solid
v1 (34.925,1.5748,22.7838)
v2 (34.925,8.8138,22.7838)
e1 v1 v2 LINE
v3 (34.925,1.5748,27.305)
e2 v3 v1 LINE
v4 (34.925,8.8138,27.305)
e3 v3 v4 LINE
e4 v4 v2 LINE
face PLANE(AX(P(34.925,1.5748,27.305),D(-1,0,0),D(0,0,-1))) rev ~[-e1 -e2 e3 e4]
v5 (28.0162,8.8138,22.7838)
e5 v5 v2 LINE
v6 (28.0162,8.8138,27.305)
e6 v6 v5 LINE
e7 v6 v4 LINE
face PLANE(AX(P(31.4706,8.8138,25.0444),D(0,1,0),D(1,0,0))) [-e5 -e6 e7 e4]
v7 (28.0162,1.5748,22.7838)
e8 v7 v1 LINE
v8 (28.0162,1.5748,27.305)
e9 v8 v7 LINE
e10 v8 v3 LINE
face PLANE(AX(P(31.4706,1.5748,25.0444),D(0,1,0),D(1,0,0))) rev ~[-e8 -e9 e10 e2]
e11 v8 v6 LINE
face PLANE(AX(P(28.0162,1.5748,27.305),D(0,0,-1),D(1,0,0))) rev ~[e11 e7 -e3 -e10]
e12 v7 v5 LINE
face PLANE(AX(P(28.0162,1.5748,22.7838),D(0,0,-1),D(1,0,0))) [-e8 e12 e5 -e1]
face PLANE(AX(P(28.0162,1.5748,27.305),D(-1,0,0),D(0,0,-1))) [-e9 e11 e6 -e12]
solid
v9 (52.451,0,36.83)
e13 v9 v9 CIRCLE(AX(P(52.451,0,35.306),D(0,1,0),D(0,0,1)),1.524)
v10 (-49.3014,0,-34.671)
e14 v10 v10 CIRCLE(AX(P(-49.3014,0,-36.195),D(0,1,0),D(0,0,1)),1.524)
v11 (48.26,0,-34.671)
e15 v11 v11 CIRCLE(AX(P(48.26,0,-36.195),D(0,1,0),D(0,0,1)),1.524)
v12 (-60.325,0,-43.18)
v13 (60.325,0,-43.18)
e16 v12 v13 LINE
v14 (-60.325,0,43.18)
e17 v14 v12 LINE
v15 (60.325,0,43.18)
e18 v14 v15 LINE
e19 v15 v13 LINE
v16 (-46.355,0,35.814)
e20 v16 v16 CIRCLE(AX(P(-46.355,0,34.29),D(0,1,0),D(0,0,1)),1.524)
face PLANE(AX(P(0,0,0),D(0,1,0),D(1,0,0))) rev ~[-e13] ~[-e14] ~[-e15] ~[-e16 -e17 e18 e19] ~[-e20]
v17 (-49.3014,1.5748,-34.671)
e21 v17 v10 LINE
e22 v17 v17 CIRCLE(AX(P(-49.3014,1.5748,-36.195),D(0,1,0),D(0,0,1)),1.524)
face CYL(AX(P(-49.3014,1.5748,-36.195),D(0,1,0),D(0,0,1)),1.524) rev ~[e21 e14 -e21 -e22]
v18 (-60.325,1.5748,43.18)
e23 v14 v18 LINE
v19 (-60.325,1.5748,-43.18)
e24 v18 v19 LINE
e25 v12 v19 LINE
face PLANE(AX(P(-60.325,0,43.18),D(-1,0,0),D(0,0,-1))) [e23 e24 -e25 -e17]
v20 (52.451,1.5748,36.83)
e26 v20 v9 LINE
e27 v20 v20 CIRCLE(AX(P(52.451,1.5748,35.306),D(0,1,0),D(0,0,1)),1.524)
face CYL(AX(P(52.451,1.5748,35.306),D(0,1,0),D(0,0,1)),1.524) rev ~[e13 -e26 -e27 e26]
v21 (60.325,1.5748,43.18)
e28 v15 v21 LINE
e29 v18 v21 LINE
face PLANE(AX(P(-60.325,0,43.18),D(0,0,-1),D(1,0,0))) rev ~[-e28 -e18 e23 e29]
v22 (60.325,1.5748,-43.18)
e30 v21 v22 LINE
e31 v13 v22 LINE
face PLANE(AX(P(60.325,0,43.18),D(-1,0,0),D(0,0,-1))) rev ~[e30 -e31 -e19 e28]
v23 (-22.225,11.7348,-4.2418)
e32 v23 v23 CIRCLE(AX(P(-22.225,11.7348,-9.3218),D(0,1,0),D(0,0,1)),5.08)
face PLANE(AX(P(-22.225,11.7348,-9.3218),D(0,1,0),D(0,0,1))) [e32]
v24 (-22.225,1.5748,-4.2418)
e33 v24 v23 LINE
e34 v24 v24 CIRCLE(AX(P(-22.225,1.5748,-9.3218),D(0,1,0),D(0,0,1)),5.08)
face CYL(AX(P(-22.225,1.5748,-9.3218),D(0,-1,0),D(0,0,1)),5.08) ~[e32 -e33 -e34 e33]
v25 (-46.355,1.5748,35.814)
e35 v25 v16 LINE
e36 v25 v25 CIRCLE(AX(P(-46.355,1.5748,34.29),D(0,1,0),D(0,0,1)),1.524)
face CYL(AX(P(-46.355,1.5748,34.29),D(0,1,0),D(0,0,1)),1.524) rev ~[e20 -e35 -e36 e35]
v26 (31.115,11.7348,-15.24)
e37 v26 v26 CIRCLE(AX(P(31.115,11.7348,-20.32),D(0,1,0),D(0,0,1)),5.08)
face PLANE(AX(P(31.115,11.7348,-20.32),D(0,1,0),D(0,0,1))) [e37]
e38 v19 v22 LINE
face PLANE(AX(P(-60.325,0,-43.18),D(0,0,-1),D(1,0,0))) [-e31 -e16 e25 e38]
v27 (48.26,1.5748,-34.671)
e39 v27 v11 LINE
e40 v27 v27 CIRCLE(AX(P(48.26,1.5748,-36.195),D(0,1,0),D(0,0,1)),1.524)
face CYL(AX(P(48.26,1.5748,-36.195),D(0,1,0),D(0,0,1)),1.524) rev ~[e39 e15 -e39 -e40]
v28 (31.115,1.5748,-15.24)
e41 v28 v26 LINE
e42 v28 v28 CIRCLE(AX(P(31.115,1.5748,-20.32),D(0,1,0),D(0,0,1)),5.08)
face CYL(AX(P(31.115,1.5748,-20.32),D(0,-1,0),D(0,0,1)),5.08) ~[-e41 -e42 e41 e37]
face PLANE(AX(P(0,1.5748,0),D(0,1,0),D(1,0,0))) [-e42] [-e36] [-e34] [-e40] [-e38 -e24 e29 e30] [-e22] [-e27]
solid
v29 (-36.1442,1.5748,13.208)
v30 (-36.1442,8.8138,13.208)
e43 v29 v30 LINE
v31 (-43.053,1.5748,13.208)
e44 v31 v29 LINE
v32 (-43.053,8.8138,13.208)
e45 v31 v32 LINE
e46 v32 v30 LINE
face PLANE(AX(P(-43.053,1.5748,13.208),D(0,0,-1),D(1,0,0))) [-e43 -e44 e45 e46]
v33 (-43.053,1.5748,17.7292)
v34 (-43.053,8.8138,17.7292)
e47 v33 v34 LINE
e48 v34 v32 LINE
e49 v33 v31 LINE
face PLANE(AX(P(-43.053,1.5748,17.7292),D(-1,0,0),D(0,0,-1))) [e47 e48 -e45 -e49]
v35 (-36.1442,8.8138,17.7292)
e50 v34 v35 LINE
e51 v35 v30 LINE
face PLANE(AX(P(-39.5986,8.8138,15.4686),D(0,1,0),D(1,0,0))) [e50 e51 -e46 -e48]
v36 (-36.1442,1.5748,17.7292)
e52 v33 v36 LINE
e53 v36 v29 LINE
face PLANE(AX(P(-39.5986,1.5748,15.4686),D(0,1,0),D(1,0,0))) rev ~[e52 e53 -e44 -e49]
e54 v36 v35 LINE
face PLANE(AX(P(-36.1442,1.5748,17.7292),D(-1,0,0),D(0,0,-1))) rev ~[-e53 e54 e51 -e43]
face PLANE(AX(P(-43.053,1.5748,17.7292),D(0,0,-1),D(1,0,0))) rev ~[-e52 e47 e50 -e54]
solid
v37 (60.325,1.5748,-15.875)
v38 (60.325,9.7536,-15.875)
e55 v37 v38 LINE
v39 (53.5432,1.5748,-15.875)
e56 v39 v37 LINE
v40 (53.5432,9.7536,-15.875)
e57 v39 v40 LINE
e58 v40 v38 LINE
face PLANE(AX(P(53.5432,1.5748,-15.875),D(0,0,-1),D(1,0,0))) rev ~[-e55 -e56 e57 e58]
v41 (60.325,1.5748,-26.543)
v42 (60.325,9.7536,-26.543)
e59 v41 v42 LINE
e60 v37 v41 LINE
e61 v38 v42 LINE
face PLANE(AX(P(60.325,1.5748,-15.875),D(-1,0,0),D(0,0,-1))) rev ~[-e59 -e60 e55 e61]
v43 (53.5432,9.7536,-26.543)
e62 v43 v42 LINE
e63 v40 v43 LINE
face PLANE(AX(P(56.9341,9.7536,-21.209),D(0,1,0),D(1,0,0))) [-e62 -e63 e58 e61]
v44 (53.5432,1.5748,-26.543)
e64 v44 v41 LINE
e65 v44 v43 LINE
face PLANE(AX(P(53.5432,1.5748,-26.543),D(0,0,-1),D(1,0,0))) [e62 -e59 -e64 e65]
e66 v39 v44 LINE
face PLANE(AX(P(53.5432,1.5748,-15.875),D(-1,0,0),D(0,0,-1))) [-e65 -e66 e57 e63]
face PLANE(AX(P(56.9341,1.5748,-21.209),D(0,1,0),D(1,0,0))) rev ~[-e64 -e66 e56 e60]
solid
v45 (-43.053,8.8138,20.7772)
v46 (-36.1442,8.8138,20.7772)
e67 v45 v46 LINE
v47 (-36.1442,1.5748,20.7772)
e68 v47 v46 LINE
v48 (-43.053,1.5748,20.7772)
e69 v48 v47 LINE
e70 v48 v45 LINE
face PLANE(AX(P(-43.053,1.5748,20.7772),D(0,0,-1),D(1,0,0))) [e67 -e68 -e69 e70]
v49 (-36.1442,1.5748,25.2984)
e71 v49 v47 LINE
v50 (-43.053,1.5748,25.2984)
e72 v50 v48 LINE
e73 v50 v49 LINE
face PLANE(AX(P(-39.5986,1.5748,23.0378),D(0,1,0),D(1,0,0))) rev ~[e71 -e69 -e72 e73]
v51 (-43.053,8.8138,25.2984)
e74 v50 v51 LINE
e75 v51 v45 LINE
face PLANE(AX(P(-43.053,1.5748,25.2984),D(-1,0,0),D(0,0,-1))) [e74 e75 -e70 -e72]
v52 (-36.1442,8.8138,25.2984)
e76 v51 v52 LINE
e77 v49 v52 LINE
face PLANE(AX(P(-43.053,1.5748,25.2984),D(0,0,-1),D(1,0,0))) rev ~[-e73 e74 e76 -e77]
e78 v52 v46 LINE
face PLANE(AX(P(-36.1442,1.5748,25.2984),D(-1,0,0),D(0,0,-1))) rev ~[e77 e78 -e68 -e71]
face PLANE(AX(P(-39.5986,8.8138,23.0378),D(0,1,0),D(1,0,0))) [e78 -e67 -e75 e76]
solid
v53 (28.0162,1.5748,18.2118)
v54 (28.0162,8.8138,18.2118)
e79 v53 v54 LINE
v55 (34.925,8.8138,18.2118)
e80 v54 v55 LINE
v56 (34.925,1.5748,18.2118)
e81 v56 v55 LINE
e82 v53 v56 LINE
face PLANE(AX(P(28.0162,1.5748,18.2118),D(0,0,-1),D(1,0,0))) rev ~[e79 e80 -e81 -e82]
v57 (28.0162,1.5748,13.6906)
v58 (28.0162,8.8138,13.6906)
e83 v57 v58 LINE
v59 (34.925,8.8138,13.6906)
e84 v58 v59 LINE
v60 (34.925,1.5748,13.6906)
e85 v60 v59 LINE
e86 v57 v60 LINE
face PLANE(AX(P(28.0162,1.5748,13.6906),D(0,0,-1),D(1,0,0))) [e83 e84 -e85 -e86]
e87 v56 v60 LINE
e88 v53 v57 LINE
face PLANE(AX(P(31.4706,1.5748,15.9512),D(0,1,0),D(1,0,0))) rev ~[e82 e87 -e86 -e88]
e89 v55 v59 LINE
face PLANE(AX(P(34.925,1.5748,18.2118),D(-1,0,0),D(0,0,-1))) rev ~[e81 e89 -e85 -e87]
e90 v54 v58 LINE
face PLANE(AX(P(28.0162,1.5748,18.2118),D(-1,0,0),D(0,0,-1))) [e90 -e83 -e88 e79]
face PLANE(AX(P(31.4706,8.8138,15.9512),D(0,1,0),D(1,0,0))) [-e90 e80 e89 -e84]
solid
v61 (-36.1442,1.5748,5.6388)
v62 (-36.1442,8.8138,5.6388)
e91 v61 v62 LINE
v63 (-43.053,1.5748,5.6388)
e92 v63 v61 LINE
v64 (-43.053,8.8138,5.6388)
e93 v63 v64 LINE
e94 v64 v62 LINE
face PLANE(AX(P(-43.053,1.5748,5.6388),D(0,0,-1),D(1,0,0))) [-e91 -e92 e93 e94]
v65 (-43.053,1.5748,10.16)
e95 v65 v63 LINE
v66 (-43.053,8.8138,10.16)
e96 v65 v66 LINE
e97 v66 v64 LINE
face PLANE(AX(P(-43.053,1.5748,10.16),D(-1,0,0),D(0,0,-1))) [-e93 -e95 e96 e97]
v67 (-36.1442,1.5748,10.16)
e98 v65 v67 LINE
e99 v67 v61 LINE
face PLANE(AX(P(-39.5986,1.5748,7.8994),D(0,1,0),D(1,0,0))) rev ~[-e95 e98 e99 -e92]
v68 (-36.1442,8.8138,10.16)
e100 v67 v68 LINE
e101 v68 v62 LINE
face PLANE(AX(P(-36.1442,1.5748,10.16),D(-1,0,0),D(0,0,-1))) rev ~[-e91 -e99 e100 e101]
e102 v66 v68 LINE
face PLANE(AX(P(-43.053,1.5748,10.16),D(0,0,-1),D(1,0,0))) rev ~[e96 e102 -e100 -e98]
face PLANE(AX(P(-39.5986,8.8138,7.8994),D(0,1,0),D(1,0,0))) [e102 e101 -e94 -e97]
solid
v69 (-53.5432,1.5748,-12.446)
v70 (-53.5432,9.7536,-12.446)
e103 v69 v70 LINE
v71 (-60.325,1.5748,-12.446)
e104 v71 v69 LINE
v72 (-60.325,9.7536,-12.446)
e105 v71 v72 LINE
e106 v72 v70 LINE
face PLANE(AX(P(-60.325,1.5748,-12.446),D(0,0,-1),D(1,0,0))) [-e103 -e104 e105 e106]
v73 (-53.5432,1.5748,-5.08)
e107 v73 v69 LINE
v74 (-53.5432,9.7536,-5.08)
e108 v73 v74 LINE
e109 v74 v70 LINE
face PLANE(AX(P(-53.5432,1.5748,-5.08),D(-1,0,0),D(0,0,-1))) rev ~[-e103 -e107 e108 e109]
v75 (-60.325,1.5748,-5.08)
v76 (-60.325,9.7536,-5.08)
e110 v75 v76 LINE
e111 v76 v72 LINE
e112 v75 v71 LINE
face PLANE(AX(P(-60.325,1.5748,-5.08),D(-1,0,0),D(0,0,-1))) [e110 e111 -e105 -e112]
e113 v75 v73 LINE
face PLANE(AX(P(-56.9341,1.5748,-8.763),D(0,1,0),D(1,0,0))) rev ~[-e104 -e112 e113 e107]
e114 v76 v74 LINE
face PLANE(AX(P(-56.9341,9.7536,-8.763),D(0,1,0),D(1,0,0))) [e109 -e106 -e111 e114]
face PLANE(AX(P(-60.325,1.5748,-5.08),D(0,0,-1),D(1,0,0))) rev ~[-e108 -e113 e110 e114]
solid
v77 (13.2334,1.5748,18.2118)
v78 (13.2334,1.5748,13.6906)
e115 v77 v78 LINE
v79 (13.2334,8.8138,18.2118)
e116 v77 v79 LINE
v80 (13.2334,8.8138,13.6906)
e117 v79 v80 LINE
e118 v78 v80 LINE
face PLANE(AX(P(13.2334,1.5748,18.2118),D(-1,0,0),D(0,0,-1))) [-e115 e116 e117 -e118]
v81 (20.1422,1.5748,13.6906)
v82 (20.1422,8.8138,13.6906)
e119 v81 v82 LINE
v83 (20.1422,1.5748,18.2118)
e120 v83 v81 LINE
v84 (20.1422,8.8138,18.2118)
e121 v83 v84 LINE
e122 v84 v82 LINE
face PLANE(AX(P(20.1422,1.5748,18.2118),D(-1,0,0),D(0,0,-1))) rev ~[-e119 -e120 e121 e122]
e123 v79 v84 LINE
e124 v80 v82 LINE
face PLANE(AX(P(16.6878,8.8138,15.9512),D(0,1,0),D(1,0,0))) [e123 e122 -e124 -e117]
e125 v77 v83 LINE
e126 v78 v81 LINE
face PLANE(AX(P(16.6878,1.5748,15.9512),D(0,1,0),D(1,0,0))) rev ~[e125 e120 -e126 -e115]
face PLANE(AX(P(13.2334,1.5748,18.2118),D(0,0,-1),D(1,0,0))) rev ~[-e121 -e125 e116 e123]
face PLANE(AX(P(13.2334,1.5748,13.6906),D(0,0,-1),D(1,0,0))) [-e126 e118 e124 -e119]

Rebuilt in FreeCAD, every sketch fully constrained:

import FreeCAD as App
import Part
import Sketcher

V = App.Vector
Q = App.Units.Quantity


def add_polygon(sketch, points):
    """Adds a closed chain of lines whose ends are joined by coincident constraints."""
    first, n = sketch.GeometryCount, len(points)
    for a, b in zip(points, points[1:] + points[:1]):
        sketch.addGeometry(Part.LineSegment(App.Vector(*a, 0), App.Vector(*b, 0)), False)
    for i in range(n):
        sketch.addConstraint(Sketcher.Constraint("Coincident", first + i, 2, first + (i + 1) % n, 1))

doc = App.newDocument("Part")
body = doc.addObject("PartDesign::Body", "Body")

sketch1 = body.newObject("Sketcher::SketchObject", "Sketch")
sketch1.AttachmentSupport = (doc.getObject("XZ_Plane"), [""])
sketch1.MapMode = "FlatFace"
add_polygon(sketch1, [(-60, -43), (-60, 43), (60, 43), (60, -43)])
sketch1.addConstraint([
    Sketcher.Constraint("Vertical", 0),
    Sketcher.Constraint("Horizontal", 1),
    Sketcher.Constraint("Vertical", 2),
    Sketcher.Constraint("Horizontal", 3),
    Sketcher.Constraint("Symmetric", 0, 2, 2, 2, -1, 1),
    Sketcher.Constraint("DistanceY", 0, 1, 0, 2, Q("3.4 in")),
    Sketcher.Constraint("DistanceX", 1, 1, 1, 2, Q("4.75 in")),
])
pad1 = body.newObject("PartDesign::Pad", "Pad")
pad1.Profile = sketch1
pad1.Length = Q("0.062 in")
pad1.Reversed = True

sketch2 = body.newObject("Sketcher::SketchObject", "Sketch001")
sketch2.AttachmentSupport = (doc.getObject("XZ_Plane"), [""])
sketch2.MapMode = "FlatFace"
sketch2.AttachmentOffset = App.Placement(V(0, 0, -0.062 * 25.4), App.Rotation())
sketch2.addGeometry([
    Part.Circle(V(-22, -9, 0), V(0, 0, 1), 5),
    Part.Circle(V(31, -20, 0), V(0, 0, 1), 5),
], False)
sketch2.addConstraint([
    Sketcher.Constraint("Equal", 0, 1),
    Sketcher.Constraint("Diameter", 0, Q("0.4 in")),
    Sketcher.Constraint("DistanceY", 1, 3, -1, 1, Q("0.8 in")),
    Sketcher.Constraint("DistanceX", 0, 3, 1, 3, Q("2.1 in")),
    Sketcher.Constraint("DistanceX", 0, 3, -1, 1, Q("0.875 in")),
    Sketcher.Constraint("DistanceY", 0, 3, -1, 1, Q("0.367 in")),
])
pad2 = body.newObject("PartDesign::Pad", "Pad001")
pad2.Profile = sketch2
pad2.Length = Q("0.4 in")
pad2.Reversed = True

sketch3 = body.newObject("Sketcher::SketchObject", "Sketch002")
sketch3.AttachmentSupport = (doc.getObject("XZ_Plane"), [""])
sketch3.MapMode = "FlatFace"
sketch3.AttachmentOffset = App.Placement(V(0, 0, -0.062 * 25.4), App.Rotation())
sketch3.addGeometry([
    Part.Circle(V(-49.3, -36.2, 0), V(0, 0, 1), 1.5),
    Part.Circle(V(48.3, -36.2, 0), V(0, 0, 1), 1.5),
    Part.Circle(V(-46.4, 34.3, 0), V(0, 0, 1), 1.5),
    Part.Circle(V(52.5, 35.3, 0), V(0, 0, 1), 1.5),
], False)
sketch3.addConstraint([
    Sketcher.Constraint("Equal", 0, 1),
    Sketcher.Constraint("Equal", 1, 2),
    Sketcher.Constraint("Equal", 2, 3),
    Sketcher.Constraint("Horizontal", 0, 3, 1, 3),
    Sketcher.Constraint("Diameter", 0, Q("0.12 in")),
    Sketcher.Constraint("DistanceX", -1, 1, 1, 3, Q("1.9 in")),
    Sketcher.Constraint("DistanceY", -1, 1, 2, 3, Q("1.35 in")),
    Sketcher.Constraint("DistanceY", -1, 1, 3, 3, Q("1.39 in")),
    Sketcher.Constraint("DistanceX", 2, 3, 3, 3, Q("3.89 in")),
    Sketcher.Constraint("DistanceX", 0, 3, -1, 1, Q("1.941 in")),
    Sketcher.Constraint("DistanceY", 0, 3, -1, 1, Q("1.425 in")),
    Sketcher.Constraint("DistanceX", 2, 3, -1, 1, Q("1.825 in")),
])
pocket1 = body.newObject("PartDesign::Pocket", "Pocket")
pocket1.Profile = sketch3
pocket1.Type = "ThroughAll"
pocket1.Reversed = True
body2 = doc.addObject("PartDesign::Body", "Body001")

sketch4 = body2.newObject("Sketcher::SketchObject", "Sketch003")
sketch4.AttachmentSupport = (doc.getObject("XZ_Plane001"), [""])
sketch4.MapMode = "FlatFace"
sketch4.AttachmentOffset = App.Placement(V(0, 0, -0.062 * 25.4), App.Rotation())
add_polygon(sketch4, [(-60, -12), (-60, -5), (-54, -5), (-54, -12)])
sketch4.addConstraint([
    Sketcher.Constraint("Vertical", 0),
    Sketcher.Constraint("Horizontal", 1),
    Sketcher.Constraint("Vertical", 2),
    Sketcher.Constraint("Horizontal", 3),
    Sketcher.Constraint("DistanceY", 0, 1, 0, 2, Q("0.29 in")),
    Sketcher.Constraint("DistanceY", 0, 2, -1, 1, Q("0.2 in")),
    Sketcher.Constraint("DistanceX", 1, 1, 1, 2, Q("0.267 in")),
    Sketcher.Constraint("DistanceX", 0, 2, -1, 1, Q("2.375 in")),
])
pad3 = body2.newObject("PartDesign::Pad", "Pad002")
pad3.Profile = sketch4
pad3.Length = Q("0.322 in")
pad3.Reversed = True
body3 = doc.addObject("PartDesign::Body", "Body002")

sketch5 = body3.newObject("Sketcher::SketchObject", "Sketch004")
sketch5.AttachmentSupport = (doc.getObject("XZ_Plane002"), [""])
sketch5.MapMode = "FlatFace"
sketch5.AttachmentOffset = App.Placement(V(0, 0, -0.062 * 25.4), App.Rotation())
add_polygon(sketch5, [(54, -27), (54, -16), (60, -16), (60, -27)])
sketch5.addConstraint([
    Sketcher.Constraint("Vertical", 0),
    Sketcher.Constraint("Horizontal", 1),
    Sketcher.Constraint("Vertical", 2),
    Sketcher.Constraint("Horizontal", 3),
    Sketcher.Constraint("DistanceY", 0, 1, 0, 2, Q("0.42 in")),
    Sketcher.Constraint("DistanceX", 1, 1, 1, 2, Q("0.267 in")),
    Sketcher.Constraint("DistanceX", -1, 1, 0, 2, Q("2.108 in")),
    Sketcher.Constraint("DistanceY", 0, 2, -1, 1, Q("0.625 in")),
])
pad4 = body3.newObject("PartDesign::Pad", "Pad003")
pad4.Profile = sketch5
pad4.Length = Q("0.322 in")
pad4.Reversed = True
body4 = doc.addObject("PartDesign::Body", "Body003")

sketch6 = body4.newObject("Sketcher::SketchObject", "Sketch005")
sketch6.AttachmentSupport = (doc.getObject("XZ_Plane003"), [""])
sketch6.MapMode = "FlatFace"
sketch6.AttachmentOffset = App.Placement(V(0, 0, -0.062 * 25.4), App.Rotation())
add_polygon(sketch6, [(-43.1, 5.6), (-43.1, 10.2), (-36.1, 10.2), (-36.1, 5.6)])
sketch6.addConstraint([
    Sketcher.Constraint("Vertical", 0),
    Sketcher.Constraint("Horizontal", 1),
    Sketcher.Constraint("Vertical", 2),
    Sketcher.Constraint("Horizontal", 3),
    Sketcher.Constraint("DistanceY", -1, 1, 0, 2, Q("0.4 in")),
    Sketcher.Constraint("DistanceX", 1, 1, 1, 2, Q("0.272 in")),
    Sketcher.Constraint("DistanceY", 0, 1, 0, 2, Q("0.178 in")),
    Sketcher.Constraint("DistanceX", 0, 2, -1, 1, Q("1.695 in")),
])
pad5 = body4.newObject("PartDesign::Pad", "Pad004")
pad5.Profile = sketch6
pad5.Length = Q("0.285 in")
pad5.Reversed = True
body5 = doc.addObject("PartDesign::Body", "Body004")

sketch7 = body5.newObject("Sketcher::SketchObject", "Sketch006")
sketch7.AttachmentSupport = (doc.getObject("XZ_Plane004"), [""])
sketch7.MapMode = "FlatFace"
sketch7.AttachmentOffset = App.Placement(V(0, 0, -0.062 * 25.4), App.Rotation())
add_polygon(sketch7, [(-43.1, 13.2), (-43.1, 17.7), (-36.1, 17.7), (-36.1, 13.2)])
sketch7.addConstraint([
    Sketcher.Constraint("Vertical", 0),
    Sketcher.Constraint("Horizontal", 1),
    Sketcher.Constraint("Vertical", 2),
    Sketcher.Constraint("Horizontal", 3),
    Sketcher.Constraint("DistanceX", 1, 1, 1, 2, Q("0.272 in")),
    Sketcher.Constraint("DistanceY", 0, 1, 0, 2, Q("0.178 in")),
    Sketcher.Constraint("DistanceY", -1, 1, 2, 2, Q("0.52 in")),
    Sketcher.Constraint("DistanceX", 0, 2, -1, 1, Q("1.695 in")),
])
pad6 = body5.newObject("PartDesign::Pad", "Pad005")
pad6.Profile = sketch7
pad6.Length = Q("0.285 in")
pad6.Reversed = True
body6 = doc.addObject("PartDesign::Body", "Body005")

sketch8 = body6.newObject("Sketcher::SketchObject", "Sketch007")
sketch8.AttachmentSupport = (doc.getObject("XZ_Plane005"), [""])
sketch8.MapMode = "FlatFace"
sketch8.AttachmentOffset = App.Placement(V(0, 0, -0.062 * 25.4), App.Rotation())
add_polygon(sketch8, [(-43.1, 20.8), (-43.1, 25.3), (-36.1, 25.3), (-36.1, 20.8)])
sketch8.addConstraint([
    Sketcher.Constraint("Vertical", 0),
    Sketcher.Constraint("Horizontal", 1),
    Sketcher.Constraint("Vertical", 2),
    Sketcher.Constraint("Horizontal", 3),
    Sketcher.Constraint("DistanceX", 1, 1, 1, 2, Q("0.272 in")),
    Sketcher.Constraint("DistanceY", 0, 1, 0, 2, Q("0.178 in")),
    Sketcher.Constraint("DistanceX", 0, 2, -1, 1, Q("1.695 in")),
    Sketcher.Constraint("DistanceY", -1, 1, 0, 2, Q("0.996 in")),
])
pad7 = body6.newObject("PartDesign::Pad", "Pad006")
pad7.Profile = sketch8
pad7.Length = Q("0.285 in")
pad7.Reversed = True
body7 = doc.addObject("PartDesign::Body", "Body006")

sketch9 = body7.newObject("Sketcher::SketchObject", "Sketch008")
sketch9.AttachmentSupport = (doc.getObject("XZ_Plane006"), [""])
sketch9.MapMode = "FlatFace"
sketch9.AttachmentOffset = App.Placement(V(0, 0, -0.062 * 25.4), App.Rotation())
add_polygon(sketch9, [(28, 13.7), (28, 18.2), (34.9, 18.2), (34.9, 13.7)])
sketch9.addConstraint([
    Sketcher.Constraint("Vertical", 0),
    Sketcher.Constraint("Horizontal", 1),
    Sketcher.Constraint("Vertical", 2),
    Sketcher.Constraint("Horizontal", 3),
    Sketcher.Constraint("DistanceX", 1, 1, 1, 2, Q("0.272 in")),
    Sketcher.Constraint("DistanceY", 0, 1, 0, 2, Q("0.178 in")),
    Sketcher.Constraint("DistanceX", -1, 1, 0, 2, Q("1.103 in")),
    Sketcher.Constraint("DistanceY", -1, 1, 0, 2, Q("0.717 in")),
])
pad8 = body7.newObject("PartDesign::Pad", "Pad007")
pad8.Profile = sketch9
pad8.Length = Q("0.285 in")
pad8.Reversed = True
body8 = doc.addObject("PartDesign::Body", "Body007")

sketch10 = body8.newObject("Sketcher::SketchObject", "Sketch009")
sketch10.AttachmentSupport = (doc.getObject("XZ_Plane007"), [""])
sketch10.MapMode = "FlatFace"
sketch10.AttachmentOffset = App.Placement(V(0, 0, -0.062 * 25.4), App.Rotation())
add_polygon(sketch10, [(28, 22.8), (28, 27.3), (34.9, 27.3), (34.9, 22.8)])
sketch10.addConstraint([
    Sketcher.Constraint("Vertical", 0),
    Sketcher.Constraint("Horizontal", 1),
    Sketcher.Constraint("Vertical", 2),
    Sketcher.Constraint("Horizontal", 3),
    Sketcher.Constraint("DistanceX", 1, 1, 1, 2, Q("0.272 in")),
    Sketcher.Constraint("DistanceY", 0, 1, 0, 2, Q("0.178 in")),
    Sketcher.Constraint("DistanceX", -1, 1, 0, 2, Q("1.103 in")),
    Sketcher.Constraint("DistanceY", -1, 1, 0, 2, Q("1.075 in")),
])
pad9 = body8.newObject("PartDesign::Pad", "Pad008")
pad9.Profile = sketch10
pad9.Length = Q("0.285 in")
pad9.Reversed = True
body9 = doc.addObject("PartDesign::Body", "Body008")

sketch11 = body9.newObject("Sketcher::SketchObject", "Sketch010")
sketch11.AttachmentSupport = (doc.getObject("XZ_Plane008"), [""])
sketch11.MapMode = "FlatFace"
sketch11.AttachmentOffset = App.Placement(V(0, 0, -0.062 * 25.4), App.Rotation())
add_polygon(sketch11, [(13.2, 13.7), (13.2, 18.2), (20.1, 18.2), (20.1, 13.7)])
sketch11.addConstraint([
    Sketcher.Constraint("Vertical", 0),
    Sketcher.Constraint("Horizontal", 1),
    Sketcher.Constraint("Vertical", 2),
    Sketcher.Constraint("Horizontal", 3),
    Sketcher.Constraint("DistanceX", 1, 1, 1, 2, Q("0.272 in")),
    Sketcher.Constraint("DistanceY", 0, 1, 0, 2, Q("0.178 in")),
    Sketcher.Constraint("DistanceX", -1, 1, 0, 2, Q("0.521 in")),
    Sketcher.Constraint("DistanceY", -1, 1, 0, 2, Q("0.717 in")),
])
pad10 = body9.newObject("PartDesign::Pad", "Pad009")
pad10.Profile = sketch11
pad10.Length = Q("0.285 in")
pad10.Reversed = True

doc.recompute()
